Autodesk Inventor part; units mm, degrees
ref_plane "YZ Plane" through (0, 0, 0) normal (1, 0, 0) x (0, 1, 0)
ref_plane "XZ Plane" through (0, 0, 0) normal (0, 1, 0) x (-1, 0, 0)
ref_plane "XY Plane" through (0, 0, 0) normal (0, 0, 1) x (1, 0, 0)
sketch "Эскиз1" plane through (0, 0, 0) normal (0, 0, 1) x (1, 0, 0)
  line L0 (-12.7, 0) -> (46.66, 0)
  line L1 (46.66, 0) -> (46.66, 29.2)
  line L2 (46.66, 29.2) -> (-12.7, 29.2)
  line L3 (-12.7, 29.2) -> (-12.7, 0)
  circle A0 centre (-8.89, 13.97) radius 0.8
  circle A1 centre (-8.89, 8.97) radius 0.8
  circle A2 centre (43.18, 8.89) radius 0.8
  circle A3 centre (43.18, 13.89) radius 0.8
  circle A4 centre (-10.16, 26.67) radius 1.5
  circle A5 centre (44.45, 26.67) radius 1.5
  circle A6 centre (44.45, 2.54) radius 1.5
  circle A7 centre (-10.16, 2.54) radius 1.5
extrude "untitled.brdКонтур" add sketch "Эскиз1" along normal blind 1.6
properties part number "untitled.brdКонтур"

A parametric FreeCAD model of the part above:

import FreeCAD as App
import Part
import Sketcher

V = App.Vector
Q = App.Units.Quantity


def add_polygon(sketch, points):
    """Adds a closed chain of lines whose ends are joined by coincident constraints."""
    first, n = sketch.GeometryCount, len(points)
    for a, b in zip(points, points[1:] + points[:1]):
        sketch.addGeometry(Part.LineSegment(App.Vector(*a, 0), App.Vector(*b, 0)), False)
    for i in range(n):
        sketch.addConstraint(Sketcher.Constraint("Coincident", first + i, 2, first + (i + 1) % n, 1))

doc = App.newDocument("Part")
params = doc.addObject("Spreadsheet::Sheet", "Params")
for row, (alias, value) in enumerate([
    ("sketch1_diameter", "0.063 in"),
    ("sketch1_width", "2.337 in"),
    ("pad1_length", "0.0629921 in"),
], start=1):
    params.set(f"A{row}", alias)
    params.set(f"B{row}", "=" + value)
    params.setAlias(f"B{row}", alias)

body = doc.addObject("PartDesign::Body", "Body")

# Sketch on XY plane
sketch1 = body.newObject("Sketcher::SketchObject", "Sketch")
sketch1.AttachmentSupport = (doc.getObject("XY_Plane"), [""])
sketch1.MapMode = "FlatFace"
add_polygon(sketch1, [(-12.7, 29.2), (-12.7, 0), (46.7, 0), (46.7, 29.2)])  # lines 0-3
sketch1.addGeometry(Part.Circle(V(-10.2, 2.5, 0), V(0, 0, 1), 1.5), False)  # 4
sketch1.addGeometry(Part.Circle(V(-8.9, 9, 0), V(0, 0, 1), 0.8), False)  # 5
sketch1.addGeometry(Part.Circle(V(-8.9, 14, 0), V(0, 0, 1), 0.8), False)  # 6
sketch1.addGeometry(Part.Circle(V(44.5, 2.5, 0), V(0, 0, 1), 1.5), False)  # 7
sketch1.addGeometry(Part.Circle(V(43.2, 8.9, 0), V(0, 0, 1), 0.8), False)  # 8
sketch1.addGeometry(Part.Circle(V(43.2, 13.9, 0), V(0, 0, 1), 0.8), False)  # 9
sketch1.addGeometry(Part.Circle(V(-10.2, 26.7, 0), V(0, 0, 1), 1.5), False)  # 10
sketch1.addGeometry(Part.Circle(V(44.5, 26.7, 0), V(0, 0, 1), 1.5), False)  # 11
sketch1.addConstraint([
    Sketcher.Constraint("Vertical", 0),
    Sketcher.Constraint("Horizontal", 1),
    Sketcher.Constraint("Vertical", 2),
    Sketcher.Constraint("Horizontal", 3),
    Sketcher.Constraint("Equal", 5, 6),
    Sketcher.Constraint("Equal", 4, 7),
    Sketcher.Constraint("Equal", 6, 8),
    Sketcher.Constraint("Equal", 8, 9),
    Sketcher.Constraint("Equal", 7, 10),
    Sketcher.Constraint("Equal", 10, 11),
    Sketcher.Constraint("PointOnObject", 0, 2, -1),
    Sketcher.Constraint("Horizontal", 4, 3, 7, 3),
    Sketcher.Constraint("Horizontal", 10, 3, 11, 3),
    Sketcher.Constraint("Vertical", 5, 3, 6, 3),
    Sketcher.Constraint("Vertical", 8, 3, 9, 3),
    Sketcher.Constraint("Vertical", 4, 3, 10, 3),
    Sketcher.Constraint("Vertical", 7, 3, 11, 3),
    Sketcher.Constraint("Diameter", 5, Q("0.063 in")),
    Sketcher.Constraint("Diameter", 4, Q("0.1181 in")),
    Sketcher.Constraint("DistanceX", 4, 3, -1, 1, Q("0.4 in")),
    Sketcher.Constraint("DistanceY", -1, 1, 4, 3, Q("0.1 in")),
    Sketcher.Constraint("DistanceX", -1, 1, 8, 3, Q("1.7 in")),
    Sketcher.Constraint("DistanceX", 0, 2, -1, 1, Q("0.5 in")),
    Sketcher.Constraint("DistanceX", 5, 3, 7, 3, Q("2.1 in")),
    Sketcher.Constraint("DistanceY", 8, 3, 6, 3, Q("0.2 in")),
    Sketcher.Constraint("DistanceY", 6, 3, 10, 3, Q("0.5 in")),
    Sketcher.Constraint("DistanceX", 1, 1, 1, 2, Q("2.337 in")),
    Sketcher.Constraint("DistanceX", 5, 3, -1, 1, Q("0.35 in")),
    Sketcher.Constraint("DistanceY", -1, 1, 6, 3, Q("0.55 in")),
    Sketcher.Constraint("DistanceY", 0, 2, 0, 1, Q("1.1496 in")),
    Sketcher.Constraint("DistanceY", 5, 3, 9, 3, Q("0.1937 in")),
    Sketcher.Constraint("DistanceY", -1, 1, 5, 3, 8.97),
])
sketch1.setExpression("Constraints[21]", "Params.sketch1_diameter")
sketch1.setExpression("Constraints[30]", "Params.sketch1_width")
pad1 = body.newObject("PartDesign::Pad", "Pad")
pad1.Profile = sketch1
pad1.setExpression("Length", "Params.pad1_length")

doc.recompute()
